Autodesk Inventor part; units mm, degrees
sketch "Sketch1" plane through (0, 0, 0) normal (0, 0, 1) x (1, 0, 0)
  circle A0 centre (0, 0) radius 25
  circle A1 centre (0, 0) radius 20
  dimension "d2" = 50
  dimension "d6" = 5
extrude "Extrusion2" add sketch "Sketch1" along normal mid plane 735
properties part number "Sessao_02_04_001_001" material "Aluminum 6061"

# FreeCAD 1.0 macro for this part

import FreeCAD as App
import Part
import Sketcher

doc = App.newDocument("Part")
body = doc.addObject("PartDesign::Body", "Body")

sketch1 = doc.addObject("Sketcher::SketchObject", "Sketch")
body.addObject(sketch1)
sketch1.AttachmentSupport = (doc.XY_Plane, [""])
sketch1.MapMode = "FlatFace"
sketch1.addGeometry([
    Part.Circle(App.Vector(0, 0, 0), App.Vector(0, 0, 1), 25),
    Part.Circle(App.Vector(0, 0, 0), App.Vector(0, 0, 1), 20),
], False)
sketch1.addConstraint([
    Sketcher.Constraint("Coincident", 0, 3, -1, 1),
    Sketcher.Constraint("Coincident", 1, 3, -1, 1),
    Sketcher.Constraint("Diameter", 0, 50.0),
    Sketcher.Constraint("Diameter", 1, 40.0),
])
pad1 = doc.addObject("PartDesign::Pad", "Pad")
body.addObject(pad1)
pad1.Profile = sketch1
pad1.Length = 735
pad1.Midplane = True

doc.recompute()
